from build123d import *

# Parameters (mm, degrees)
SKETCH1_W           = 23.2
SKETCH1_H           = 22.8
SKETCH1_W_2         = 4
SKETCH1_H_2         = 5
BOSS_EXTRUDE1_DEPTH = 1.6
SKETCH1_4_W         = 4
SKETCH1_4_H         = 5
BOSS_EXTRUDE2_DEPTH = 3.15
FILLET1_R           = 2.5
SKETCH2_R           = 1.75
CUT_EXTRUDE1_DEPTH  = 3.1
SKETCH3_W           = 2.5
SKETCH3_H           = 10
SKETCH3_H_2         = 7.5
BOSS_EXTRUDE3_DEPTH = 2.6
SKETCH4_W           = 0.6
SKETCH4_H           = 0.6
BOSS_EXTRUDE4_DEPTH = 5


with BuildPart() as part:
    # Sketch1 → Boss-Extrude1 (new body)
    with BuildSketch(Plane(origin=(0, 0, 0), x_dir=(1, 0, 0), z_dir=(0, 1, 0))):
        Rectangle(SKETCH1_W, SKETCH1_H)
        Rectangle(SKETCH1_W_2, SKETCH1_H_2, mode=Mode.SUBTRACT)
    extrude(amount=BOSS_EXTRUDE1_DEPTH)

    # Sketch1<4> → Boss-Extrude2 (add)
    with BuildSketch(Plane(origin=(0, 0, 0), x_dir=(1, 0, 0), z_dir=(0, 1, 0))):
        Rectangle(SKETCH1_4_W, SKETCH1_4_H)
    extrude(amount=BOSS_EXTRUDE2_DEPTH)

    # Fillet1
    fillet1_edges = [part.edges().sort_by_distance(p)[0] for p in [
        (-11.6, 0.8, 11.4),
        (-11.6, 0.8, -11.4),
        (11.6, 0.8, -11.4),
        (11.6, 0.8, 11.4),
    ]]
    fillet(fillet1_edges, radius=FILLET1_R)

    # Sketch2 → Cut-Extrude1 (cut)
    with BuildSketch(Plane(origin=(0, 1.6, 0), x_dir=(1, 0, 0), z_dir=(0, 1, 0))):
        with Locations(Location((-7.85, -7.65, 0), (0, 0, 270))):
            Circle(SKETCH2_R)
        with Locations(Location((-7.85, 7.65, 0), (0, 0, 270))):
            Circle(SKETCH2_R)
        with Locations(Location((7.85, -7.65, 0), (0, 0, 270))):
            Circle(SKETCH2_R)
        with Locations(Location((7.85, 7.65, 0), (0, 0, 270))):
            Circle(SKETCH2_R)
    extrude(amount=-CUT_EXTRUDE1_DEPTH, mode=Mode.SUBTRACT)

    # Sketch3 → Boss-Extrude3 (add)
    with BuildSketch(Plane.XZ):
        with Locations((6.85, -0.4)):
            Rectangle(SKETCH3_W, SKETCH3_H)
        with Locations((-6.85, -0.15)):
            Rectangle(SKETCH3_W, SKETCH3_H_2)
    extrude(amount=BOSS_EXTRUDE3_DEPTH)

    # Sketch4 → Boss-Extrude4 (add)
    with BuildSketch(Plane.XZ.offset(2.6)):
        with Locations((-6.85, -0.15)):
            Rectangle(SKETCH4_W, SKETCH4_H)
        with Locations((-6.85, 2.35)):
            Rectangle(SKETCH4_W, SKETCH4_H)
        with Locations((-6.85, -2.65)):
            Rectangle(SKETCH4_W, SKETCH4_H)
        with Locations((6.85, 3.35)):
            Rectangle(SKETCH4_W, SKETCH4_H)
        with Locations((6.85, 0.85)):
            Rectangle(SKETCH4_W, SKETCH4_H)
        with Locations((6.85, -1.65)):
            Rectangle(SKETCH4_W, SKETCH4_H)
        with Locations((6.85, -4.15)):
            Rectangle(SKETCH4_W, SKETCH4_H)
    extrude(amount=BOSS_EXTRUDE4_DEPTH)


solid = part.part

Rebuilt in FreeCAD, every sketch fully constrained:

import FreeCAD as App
import Part
import Sketcher

V = App.Vector


def edges_at(feature, points):
    """Names of the edges that pass closest to the given points."""
    edges = feature.Shape.Edges
    near = lambda p: min(range(len(edges)), key=lambda i: edges[i].distToShape(Part.Vertex(*p))[0])
    return sorted({f"Edge{near(p) + 1}" for p in points})


def add_polygon(sketch, points):
    """Adds a closed chain of lines whose ends are joined by coincident constraints."""
    first, n = sketch.GeometryCount, len(points)
    for a, b in zip(points, points[1:] + points[:1]):
        sketch.addGeometry(Part.LineSegment(App.Vector(*a, 0), App.Vector(*b, 0)), False)
    for i in range(n):
        sketch.addConstraint(Sketcher.Constraint("Coincident", first + i, 2, first + (i + 1) % n, 1))

doc = App.newDocument("Part")
body = doc.addObject("PartDesign::Body", "Body")

sketch1 = doc.addObject("Sketcher::SketchObject", "Sketch")
body.addObject(sketch1)
sketch1.AttachmentSupport = (doc.XZ_Plane, [""])
sketch1.MapMode = "FlatFace"
add_polygon(sketch1, [(-11.6, -11.4), (-11.6, 11.4), (11.6, 11.4), (11.6, -11.4)])
add_polygon(sketch1, [(2, 2.5), (-2, 2.5), (-2, -2.5), (2, -2.5)])
sketch1.addConstraint([
    Sketcher.Constraint("Vertical", 0),
    Sketcher.Constraint("Horizontal", 1),
    Sketcher.Constraint("Vertical", 2),
    Sketcher.Constraint("Horizontal", 3),
    Sketcher.Constraint("Horizontal", 4),
    Sketcher.Constraint("Vertical", 5),
    Sketcher.Constraint("Horizontal", 6),
    Sketcher.Constraint("Vertical", 7),
    Sketcher.Constraint("Symmetric", 0, 2, 2, 2, -1, 1),
    Sketcher.Constraint("Symmetric", 4, 2, 6, 2, -1, 1),
    Sketcher.Constraint("DistanceX", 4, 2, 4, 1, 4.0),
    Sketcher.Constraint("DistanceY", 5, 2, 5, 1, 5.0),
    Sketcher.Constraint("DistanceX", 1, 1, 1, 2, 23.2),
    Sketcher.Constraint("DistanceY", 0, 1, 0, 2, 22.8),
])
pad1 = doc.addObject("PartDesign::Pad", "Pad")
body.addObject(pad1)
pad1.Profile = sketch1
pad1.Length = 1.6
pad1.Reversed = True

sketch2 = doc.addObject("Sketcher::SketchObject", "Sketch001")
body.addObject(sketch2)
sketch2.AttachmentSupport = (doc.XZ_Plane, [""])
sketch2.MapMode = "FlatFace"
add_polygon(sketch2, [(-2, -2.5), (-2, 2.5), (2, 2.5), (2, -2.5)])
sketch2.addConstraint([
    Sketcher.Constraint("Vertical", 0),
    Sketcher.Constraint("Horizontal", 1),
    Sketcher.Constraint("Vertical", 2),
    Sketcher.Constraint("Horizontal", 3),
    Sketcher.Constraint("Symmetric", 0, 2, 2, 2, -1, 1),
    Sketcher.Constraint("DistanceX", 1, 1, 1, 2, 4.0),
    Sketcher.Constraint("DistanceY", 0, 1, 0, 2, 5.0),
])
pad2 = doc.addObject("PartDesign::Pad", "Pad001")
body.addObject(pad2)
pad2.Profile = sketch2
pad2.Length = 3.15
pad2.Reversed = True
doc.recompute()

fillet = doc.addObject("PartDesign::Fillet", "Fillet")
body.addObject(fillet)
fillet.Base = (pad2, edges_at(pad2, [
    (-11.6, 0.8, 11.4),
    (-11.6, 0.8, -11.4),
    (11.6, 0.8, -11.4),
    (11.6, 0.8, 11.4),
]))
fillet.Radius = 2.5

sketch3 = doc.addObject("Sketcher::SketchObject", "Sketch002")
body.addObject(sketch3)
sketch3.AttachmentSupport = (doc.XZ_Plane, [""])
sketch3.MapMode = "FlatFace"
sketch3.AttachmentOffset = App.Placement(V(0, 0, -1.6), App.Rotation())
sketch3.addGeometry([
    Part.Circle(V(-7.8, 7.7, 0), V(0, 0, 1), 1.8),
    Part.Circle(V(-7.8, -7.7, 0), V(0, 0, 1), 1.8),
    Part.Circle(V(7.8, 7.7, 0), V(0, 0, 1), 1.8),
    Part.Circle(V(7.8, -7.7, 0), V(0, 0, 1), 1.8),
], False)
sketch3.addConstraint([
    Sketcher.Constraint("Equal", 0, 1),
    Sketcher.Constraint("Equal", 1, 2),
    Sketcher.Constraint("Equal", 2, 3),
    Sketcher.Constraint("Symmetric", 1, 3, 2, 3, -1, 1),
    Sketcher.Constraint("Symmetric", 0, 3, 3, 3, -1, 1),
    Sketcher.Constraint("Symmetric", 0, 3, 2, 3, -2),
    Sketcher.Constraint("Diameter", 0, 3.5),
    Sketcher.Constraint("DistanceY", 1, 3, 0, 3, 15.3),
    Sketcher.Constraint("DistanceX", 0, 3, 2, 3, 15.7),
])
pocket1 = doc.addObject("PartDesign::Pocket", "Pocket")
body.addObject(pocket1)
pocket1.Profile = sketch3
pocket1.Length = 3.1
pocket1.Reversed = True

sketch4 = doc.addObject("Sketcher::SketchObject", "Sketch003")
body.addObject(sketch4)
sketch4.AttachmentSupport = (doc.XZ_Plane, [""])
sketch4.MapMode = "FlatFace"
add_polygon(sketch4, [(5.6, 4.6), (5.6, -5.4), (8.1, -5.4), (8.1, 4.6)])
add_polygon(sketch4, [(-8.1, 3.6), (-8.1, -3.9), (-5.6, -3.9), (-5.6, 3.6)])
sketch4.addConstraint([
    Sketcher.Constraint("Vertical", 0),
    Sketcher.Constraint("Horizontal", 1),
    Sketcher.Constraint("Vertical", 2),
    Sketcher.Constraint("Horizontal", 3),
    Sketcher.Constraint("Vertical", 4),
    Sketcher.Constraint("Horizontal", 5),
    Sketcher.Constraint("Vertical", 6),
    Sketcher.Constraint("Horizontal", 7),
    Sketcher.Constraint("Equal", 3, 5),
    Sketcher.Constraint("DistanceY", 0, 2, 0, 1, 10.0),
    Sketcher.Constraint("DistanceX", 1, 1, 1, 2, 2.5),
    Sketcher.Constraint("DistanceY", 4, 2, 4, 1, 7.5),
    Sketcher.Constraint("DistanceY", 6, 2, 3, 2, 1.0),
    Sketcher.Constraint("DistanceX", -1, 1, 0, 2, 5.6),
    Sketcher.Constraint("DistanceY", 0, 2, -1, 1, 5.4),
    Sketcher.Constraint("DistanceX", 4, 2, -1, 1, 8.1),
])
pad3 = doc.addObject("PartDesign::Pad", "Pad002")
body.addObject(pad3)
pad3.Profile = sketch4
pad3.Length = 2.6

sketch5 = doc.addObject("Sketcher::SketchObject", "Sketch004")
body.addObject(sketch5)
sketch5.AttachmentSupport = (doc.XZ_Plane, [""])
sketch5.MapMode = "FlatFace"
sketch5.AttachmentOffset = App.Placement(V(0, 0, 2.6), App.Rotation())
add_polygon(sketch5, [(-7.2, 0.1), (-7.2, -0.5), (-6.5, -0.5), (-6.5, 0.1)])
add_polygon(sketch5, [(-7.2, 2.6), (-7.2, 2), (-6.5, 2), (-6.5, 2.6)])
add_polygon(sketch5, [(-7.2, -2.4), (-7.2, -3), (-6.5, -3), (-6.5, -2.4)])
add_polygon(sketch5, [(6.5, 3.6), (6.5, 3), (7.2, 3), (7.2, 3.6)])
add_polygon(sketch5, [(6.5, 1.1), (6.5, 0.6), (7.2, 0.6), (7.2, 1.1)])
add_polygon(sketch5, [(6.5, -1.4), (6.5, -1.9), (7.2, -1.9), (7.2, -1.4)])
add_polygon(sketch5, [(6.5, -3.9), (6.5, -4.5), (7.2, -4.5), (7.2, -3.9)])
sketch5.addConstraint([
    Sketcher.Constraint("Vertical", 0),
    Sketcher.Constraint("Horizontal", 1),
    Sketcher.Constraint("Vertical", 2),
    Sketcher.Constraint("Horizontal", 3),
    Sketcher.Constraint("Vertical", 4),
    Sketcher.Constraint("Horizontal", 5),
    Sketcher.Constraint("Vertical", 6),
    Sketcher.Constraint("Horizontal", 7),
    Sketcher.Constraint("Vertical", 8),
    Sketcher.Constraint("Horizontal", 9),
    Sketcher.Constraint("Vertical", 10),
    Sketcher.Constraint("Horizontal", 11),
    Sketcher.Constraint("Vertical", 12),
    Sketcher.Constraint("Horizontal", 13),
    Sketcher.Constraint("Vertical", 14),
    Sketcher.Constraint("Horizontal", 15),
    Sketcher.Constraint("Vertical", 16),
    Sketcher.Constraint("Horizontal", 17),
    Sketcher.Constraint("Vertical", 18),
    Sketcher.Constraint("Horizontal", 19),
    Sketcher.Constraint("Vertical", 20),
    Sketcher.Constraint("Horizontal", 21),
    Sketcher.Constraint("Vertical", 22),
    Sketcher.Constraint("Horizontal", 23),
    Sketcher.Constraint("Vertical", 24),
    Sketcher.Constraint("Horizontal", 25),
    Sketcher.Constraint("Vertical", 26),
    Sketcher.Constraint("Horizontal", 27),
    Sketcher.Constraint("Vertical", 3, 2, 4, 2),
    Sketcher.Constraint("Vertical", 2, 2, 5, 2),
    Sketcher.Constraint("Vertical", 7, 2, 8, 2),
    Sketcher.Constraint("Vertical", 6, 2, 9, 2),
    Sketcher.Constraint("Vertical", 15, 2, 16, 2),
    Sketcher.Constraint("Vertical", 14, 2, 17, 2),
    Sketcher.Constraint("Vertical", 19, 2, 20, 2),
    Sketcher.Constraint("Vertical", 18, 2, 21, 2),
    Sketcher.Constraint("Vertical", 23, 2, 24, 2),
    Sketcher.Constraint("Vertical", 22, 2, 25, 2),
    Sketcher.Constraint("Equal", 11, 13),
    Sketcher.Constraint("Equal", 27, 0),
    Sketcher.Constraint("Equal", 2, 4),
    Sketcher.Constraint("Equal", 6, 8),
    Sketcher.Constraint("Equal", 10, 12),
    Sketcher.Constraint("Equal", 14, 16),
    Sketcher.Constraint("Equal", 18, 20),
    Sketcher.Constraint("Equal", 22, 24),
    Sketcher.Constraint("DistanceX", 1, 1, 1, 2, 0.6),
    Sketcher.Constraint("DistanceY", 8, 2, 4, 2, 5.0),
    Sketcher.Constraint("DistanceY", 5, 2, 12, 2, 1.0),
    Sketcher.Constraint("DistanceY", 20, 2, 12, 2, 5.0),
    Sketcher.Constraint("DistanceY", 24, 2, 16, 2, 5.0),
    Sketcher.Constraint("DistanceY", 3, 2, 4, 2, 1.9),
    Sketcher.Constraint("DistanceX", 6, 2, 12, 2, 13.1),
    Sketcher.Constraint("DistanceY", 16, 2, 12, 2, 2.5),
    Sketcher.Constraint("DistanceX", 0, 2, -1, 1, 7.15),
    Sketcher.Constraint("DistanceY", 0, 2, -1, 1, 0.45),
])
pad4 = doc.addObject("PartDesign::Pad", "Pad003")
body.addObject(pad4)
pad4.Profile = sketch5
pad4.Length = 5

doc.recompute()
